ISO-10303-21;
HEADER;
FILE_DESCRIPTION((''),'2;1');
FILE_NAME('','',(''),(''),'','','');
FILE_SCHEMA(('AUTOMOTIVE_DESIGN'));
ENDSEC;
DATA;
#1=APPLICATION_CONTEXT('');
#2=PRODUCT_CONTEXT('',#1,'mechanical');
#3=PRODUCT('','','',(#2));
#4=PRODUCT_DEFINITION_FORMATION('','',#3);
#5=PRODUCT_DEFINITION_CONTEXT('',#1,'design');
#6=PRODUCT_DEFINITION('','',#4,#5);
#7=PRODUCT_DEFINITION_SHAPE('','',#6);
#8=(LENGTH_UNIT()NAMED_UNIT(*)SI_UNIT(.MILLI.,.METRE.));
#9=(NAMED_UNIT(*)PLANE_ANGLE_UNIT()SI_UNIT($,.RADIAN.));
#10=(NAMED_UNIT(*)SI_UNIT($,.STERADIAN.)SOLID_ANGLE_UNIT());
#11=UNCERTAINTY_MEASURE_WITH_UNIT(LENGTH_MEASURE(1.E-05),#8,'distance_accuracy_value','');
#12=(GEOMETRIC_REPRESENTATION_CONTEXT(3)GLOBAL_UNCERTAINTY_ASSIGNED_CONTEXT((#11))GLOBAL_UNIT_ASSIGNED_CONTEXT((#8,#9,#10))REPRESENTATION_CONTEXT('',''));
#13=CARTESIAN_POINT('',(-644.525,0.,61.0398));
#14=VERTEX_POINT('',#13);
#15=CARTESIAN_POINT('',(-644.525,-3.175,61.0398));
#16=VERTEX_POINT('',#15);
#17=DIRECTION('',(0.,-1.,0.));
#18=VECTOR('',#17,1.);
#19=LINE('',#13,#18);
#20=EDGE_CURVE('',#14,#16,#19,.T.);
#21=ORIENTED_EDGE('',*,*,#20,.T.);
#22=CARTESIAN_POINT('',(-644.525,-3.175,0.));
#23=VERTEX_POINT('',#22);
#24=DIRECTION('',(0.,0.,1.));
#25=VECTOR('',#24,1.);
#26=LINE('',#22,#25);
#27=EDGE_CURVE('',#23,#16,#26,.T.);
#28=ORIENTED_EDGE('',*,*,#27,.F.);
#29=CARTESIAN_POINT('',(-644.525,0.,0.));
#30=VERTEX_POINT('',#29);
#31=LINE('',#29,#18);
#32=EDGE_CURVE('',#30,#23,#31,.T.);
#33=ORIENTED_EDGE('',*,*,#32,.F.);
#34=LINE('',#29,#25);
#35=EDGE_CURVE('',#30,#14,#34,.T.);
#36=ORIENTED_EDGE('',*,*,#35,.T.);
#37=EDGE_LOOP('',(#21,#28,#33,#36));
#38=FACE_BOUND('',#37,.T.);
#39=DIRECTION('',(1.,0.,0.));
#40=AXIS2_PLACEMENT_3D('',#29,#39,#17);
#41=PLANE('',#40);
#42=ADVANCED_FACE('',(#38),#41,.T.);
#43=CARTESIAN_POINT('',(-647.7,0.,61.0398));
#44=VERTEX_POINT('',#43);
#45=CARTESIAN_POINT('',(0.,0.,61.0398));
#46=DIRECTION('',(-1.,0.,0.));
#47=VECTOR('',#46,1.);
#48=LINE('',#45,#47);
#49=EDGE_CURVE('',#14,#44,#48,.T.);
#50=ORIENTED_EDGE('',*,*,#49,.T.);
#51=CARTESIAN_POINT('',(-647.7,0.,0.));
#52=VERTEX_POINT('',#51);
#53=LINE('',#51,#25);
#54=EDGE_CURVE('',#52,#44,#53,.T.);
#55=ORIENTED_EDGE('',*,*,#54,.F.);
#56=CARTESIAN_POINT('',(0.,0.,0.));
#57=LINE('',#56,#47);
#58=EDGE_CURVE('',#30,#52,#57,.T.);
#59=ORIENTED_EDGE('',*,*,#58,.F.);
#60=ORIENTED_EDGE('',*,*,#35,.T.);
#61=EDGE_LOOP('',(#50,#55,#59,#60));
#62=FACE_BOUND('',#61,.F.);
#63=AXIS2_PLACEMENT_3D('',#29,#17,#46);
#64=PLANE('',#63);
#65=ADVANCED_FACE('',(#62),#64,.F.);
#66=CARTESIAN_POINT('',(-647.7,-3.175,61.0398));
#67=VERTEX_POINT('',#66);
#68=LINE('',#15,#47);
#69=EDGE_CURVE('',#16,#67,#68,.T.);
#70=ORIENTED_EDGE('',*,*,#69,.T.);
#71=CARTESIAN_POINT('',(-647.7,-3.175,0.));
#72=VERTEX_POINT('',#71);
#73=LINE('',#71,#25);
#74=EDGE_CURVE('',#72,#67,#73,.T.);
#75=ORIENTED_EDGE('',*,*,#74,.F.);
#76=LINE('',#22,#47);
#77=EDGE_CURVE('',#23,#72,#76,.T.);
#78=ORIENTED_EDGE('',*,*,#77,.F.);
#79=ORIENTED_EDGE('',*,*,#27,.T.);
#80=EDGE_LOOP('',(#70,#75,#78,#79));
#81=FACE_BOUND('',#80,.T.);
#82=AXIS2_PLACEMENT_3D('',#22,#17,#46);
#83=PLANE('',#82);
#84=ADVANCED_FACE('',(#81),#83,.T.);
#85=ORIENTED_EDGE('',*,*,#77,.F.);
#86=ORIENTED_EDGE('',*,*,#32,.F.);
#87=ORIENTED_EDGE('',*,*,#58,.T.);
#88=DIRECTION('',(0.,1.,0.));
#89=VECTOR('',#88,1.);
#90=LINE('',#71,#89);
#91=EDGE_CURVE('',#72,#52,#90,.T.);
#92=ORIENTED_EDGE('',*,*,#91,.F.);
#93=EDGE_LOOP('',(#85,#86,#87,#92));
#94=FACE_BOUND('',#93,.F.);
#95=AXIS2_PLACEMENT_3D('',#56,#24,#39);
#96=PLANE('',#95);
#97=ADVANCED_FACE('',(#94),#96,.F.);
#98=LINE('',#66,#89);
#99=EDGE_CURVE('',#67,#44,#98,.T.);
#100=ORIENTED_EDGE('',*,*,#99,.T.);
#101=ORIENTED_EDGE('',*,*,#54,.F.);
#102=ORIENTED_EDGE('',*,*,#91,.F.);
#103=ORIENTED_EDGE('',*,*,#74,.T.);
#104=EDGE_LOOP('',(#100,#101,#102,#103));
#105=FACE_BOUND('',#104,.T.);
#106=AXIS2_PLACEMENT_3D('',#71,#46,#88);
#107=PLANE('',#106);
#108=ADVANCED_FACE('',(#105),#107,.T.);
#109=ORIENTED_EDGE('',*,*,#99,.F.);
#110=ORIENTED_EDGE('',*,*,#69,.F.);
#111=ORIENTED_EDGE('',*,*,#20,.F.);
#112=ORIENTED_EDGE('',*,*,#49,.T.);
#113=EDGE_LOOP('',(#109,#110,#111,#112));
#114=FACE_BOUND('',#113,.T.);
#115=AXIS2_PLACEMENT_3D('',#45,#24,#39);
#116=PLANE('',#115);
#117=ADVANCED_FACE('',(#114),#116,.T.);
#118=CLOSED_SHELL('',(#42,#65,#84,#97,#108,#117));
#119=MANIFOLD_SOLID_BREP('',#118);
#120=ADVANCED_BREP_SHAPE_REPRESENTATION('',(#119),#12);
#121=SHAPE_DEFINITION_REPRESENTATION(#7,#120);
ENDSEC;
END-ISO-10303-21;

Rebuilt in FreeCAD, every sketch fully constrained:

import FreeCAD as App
import Part
import Sketcher
Q = App.Units.Quantity

doc = App.newDocument("Part")
body = doc.addObject("PartDesign::Body", "Body")

# Sketch on XY plane
sketch1 = doc.addObject("Sketcher::SketchObject", "Sketch")
body.addObject(sketch1)
sketch1.AttachmentSupport = (doc.XY_Plane, [""])
sketch1.MapMode = "FlatFace"
sketch1.addGeometry(Part.LineSegment(App.Vector(-644.5, -3.2, 0), App.Vector(-644.5, 0, 0)), False)
sketch1.addGeometry(Part.LineSegment(App.Vector(-644.5, 0, 0), App.Vector(-647.7, 0, 0)), False)
sketch1.addGeometry(Part.LineSegment(App.Vector(-647.7, 0, 0), App.Vector(-647.7, -3.2, 0)), False)
sketch1.addGeometry(Part.LineSegment(App.Vector(-647.7, -3.2, 0), App.Vector(-644.5, -3.2, 0)), False)
sketch1.addConstraint(Sketcher.Constraint("Coincident", 0, 2, 1, 1))
sketch1.addConstraint(Sketcher.Constraint("Coincident", 1, 2, 2, 1))
sketch1.addConstraint(Sketcher.Constraint("Coincident", 2, 2, 3, 1))
sketch1.addConstraint(Sketcher.Constraint("Coincident", 3, 2, 0, 1))
sketch1.addConstraint(Sketcher.Constraint("Vertical", 0))
sketch1.addConstraint(Sketcher.Constraint("Horizontal", 1))
sketch1.addConstraint(Sketcher.Constraint("Vertical", 2))
sketch1.addConstraint(Sketcher.Constraint("Horizontal", 3))
sketch1.addConstraint(Sketcher.Constraint("PointOnObject", 0, 2, -1))
sketch1.addConstraint(Sketcher.Constraint("Equal", 3, 0))
sketch1.addConstraint(Sketcher.Constraint("DistanceX", 1, 2, -1, 1, Q("25.5 in")))
sketch1.addConstraint(Sketcher.Constraint("DistanceX", 1, 2, 1, 1, Q("0.125 in")))
pad1 = doc.addObject("PartDesign::Pad", "Pad")
body.addObject(pad1)
pad1.Profile = sketch1
pad1.Length = 61.0398

doc.recompute()
